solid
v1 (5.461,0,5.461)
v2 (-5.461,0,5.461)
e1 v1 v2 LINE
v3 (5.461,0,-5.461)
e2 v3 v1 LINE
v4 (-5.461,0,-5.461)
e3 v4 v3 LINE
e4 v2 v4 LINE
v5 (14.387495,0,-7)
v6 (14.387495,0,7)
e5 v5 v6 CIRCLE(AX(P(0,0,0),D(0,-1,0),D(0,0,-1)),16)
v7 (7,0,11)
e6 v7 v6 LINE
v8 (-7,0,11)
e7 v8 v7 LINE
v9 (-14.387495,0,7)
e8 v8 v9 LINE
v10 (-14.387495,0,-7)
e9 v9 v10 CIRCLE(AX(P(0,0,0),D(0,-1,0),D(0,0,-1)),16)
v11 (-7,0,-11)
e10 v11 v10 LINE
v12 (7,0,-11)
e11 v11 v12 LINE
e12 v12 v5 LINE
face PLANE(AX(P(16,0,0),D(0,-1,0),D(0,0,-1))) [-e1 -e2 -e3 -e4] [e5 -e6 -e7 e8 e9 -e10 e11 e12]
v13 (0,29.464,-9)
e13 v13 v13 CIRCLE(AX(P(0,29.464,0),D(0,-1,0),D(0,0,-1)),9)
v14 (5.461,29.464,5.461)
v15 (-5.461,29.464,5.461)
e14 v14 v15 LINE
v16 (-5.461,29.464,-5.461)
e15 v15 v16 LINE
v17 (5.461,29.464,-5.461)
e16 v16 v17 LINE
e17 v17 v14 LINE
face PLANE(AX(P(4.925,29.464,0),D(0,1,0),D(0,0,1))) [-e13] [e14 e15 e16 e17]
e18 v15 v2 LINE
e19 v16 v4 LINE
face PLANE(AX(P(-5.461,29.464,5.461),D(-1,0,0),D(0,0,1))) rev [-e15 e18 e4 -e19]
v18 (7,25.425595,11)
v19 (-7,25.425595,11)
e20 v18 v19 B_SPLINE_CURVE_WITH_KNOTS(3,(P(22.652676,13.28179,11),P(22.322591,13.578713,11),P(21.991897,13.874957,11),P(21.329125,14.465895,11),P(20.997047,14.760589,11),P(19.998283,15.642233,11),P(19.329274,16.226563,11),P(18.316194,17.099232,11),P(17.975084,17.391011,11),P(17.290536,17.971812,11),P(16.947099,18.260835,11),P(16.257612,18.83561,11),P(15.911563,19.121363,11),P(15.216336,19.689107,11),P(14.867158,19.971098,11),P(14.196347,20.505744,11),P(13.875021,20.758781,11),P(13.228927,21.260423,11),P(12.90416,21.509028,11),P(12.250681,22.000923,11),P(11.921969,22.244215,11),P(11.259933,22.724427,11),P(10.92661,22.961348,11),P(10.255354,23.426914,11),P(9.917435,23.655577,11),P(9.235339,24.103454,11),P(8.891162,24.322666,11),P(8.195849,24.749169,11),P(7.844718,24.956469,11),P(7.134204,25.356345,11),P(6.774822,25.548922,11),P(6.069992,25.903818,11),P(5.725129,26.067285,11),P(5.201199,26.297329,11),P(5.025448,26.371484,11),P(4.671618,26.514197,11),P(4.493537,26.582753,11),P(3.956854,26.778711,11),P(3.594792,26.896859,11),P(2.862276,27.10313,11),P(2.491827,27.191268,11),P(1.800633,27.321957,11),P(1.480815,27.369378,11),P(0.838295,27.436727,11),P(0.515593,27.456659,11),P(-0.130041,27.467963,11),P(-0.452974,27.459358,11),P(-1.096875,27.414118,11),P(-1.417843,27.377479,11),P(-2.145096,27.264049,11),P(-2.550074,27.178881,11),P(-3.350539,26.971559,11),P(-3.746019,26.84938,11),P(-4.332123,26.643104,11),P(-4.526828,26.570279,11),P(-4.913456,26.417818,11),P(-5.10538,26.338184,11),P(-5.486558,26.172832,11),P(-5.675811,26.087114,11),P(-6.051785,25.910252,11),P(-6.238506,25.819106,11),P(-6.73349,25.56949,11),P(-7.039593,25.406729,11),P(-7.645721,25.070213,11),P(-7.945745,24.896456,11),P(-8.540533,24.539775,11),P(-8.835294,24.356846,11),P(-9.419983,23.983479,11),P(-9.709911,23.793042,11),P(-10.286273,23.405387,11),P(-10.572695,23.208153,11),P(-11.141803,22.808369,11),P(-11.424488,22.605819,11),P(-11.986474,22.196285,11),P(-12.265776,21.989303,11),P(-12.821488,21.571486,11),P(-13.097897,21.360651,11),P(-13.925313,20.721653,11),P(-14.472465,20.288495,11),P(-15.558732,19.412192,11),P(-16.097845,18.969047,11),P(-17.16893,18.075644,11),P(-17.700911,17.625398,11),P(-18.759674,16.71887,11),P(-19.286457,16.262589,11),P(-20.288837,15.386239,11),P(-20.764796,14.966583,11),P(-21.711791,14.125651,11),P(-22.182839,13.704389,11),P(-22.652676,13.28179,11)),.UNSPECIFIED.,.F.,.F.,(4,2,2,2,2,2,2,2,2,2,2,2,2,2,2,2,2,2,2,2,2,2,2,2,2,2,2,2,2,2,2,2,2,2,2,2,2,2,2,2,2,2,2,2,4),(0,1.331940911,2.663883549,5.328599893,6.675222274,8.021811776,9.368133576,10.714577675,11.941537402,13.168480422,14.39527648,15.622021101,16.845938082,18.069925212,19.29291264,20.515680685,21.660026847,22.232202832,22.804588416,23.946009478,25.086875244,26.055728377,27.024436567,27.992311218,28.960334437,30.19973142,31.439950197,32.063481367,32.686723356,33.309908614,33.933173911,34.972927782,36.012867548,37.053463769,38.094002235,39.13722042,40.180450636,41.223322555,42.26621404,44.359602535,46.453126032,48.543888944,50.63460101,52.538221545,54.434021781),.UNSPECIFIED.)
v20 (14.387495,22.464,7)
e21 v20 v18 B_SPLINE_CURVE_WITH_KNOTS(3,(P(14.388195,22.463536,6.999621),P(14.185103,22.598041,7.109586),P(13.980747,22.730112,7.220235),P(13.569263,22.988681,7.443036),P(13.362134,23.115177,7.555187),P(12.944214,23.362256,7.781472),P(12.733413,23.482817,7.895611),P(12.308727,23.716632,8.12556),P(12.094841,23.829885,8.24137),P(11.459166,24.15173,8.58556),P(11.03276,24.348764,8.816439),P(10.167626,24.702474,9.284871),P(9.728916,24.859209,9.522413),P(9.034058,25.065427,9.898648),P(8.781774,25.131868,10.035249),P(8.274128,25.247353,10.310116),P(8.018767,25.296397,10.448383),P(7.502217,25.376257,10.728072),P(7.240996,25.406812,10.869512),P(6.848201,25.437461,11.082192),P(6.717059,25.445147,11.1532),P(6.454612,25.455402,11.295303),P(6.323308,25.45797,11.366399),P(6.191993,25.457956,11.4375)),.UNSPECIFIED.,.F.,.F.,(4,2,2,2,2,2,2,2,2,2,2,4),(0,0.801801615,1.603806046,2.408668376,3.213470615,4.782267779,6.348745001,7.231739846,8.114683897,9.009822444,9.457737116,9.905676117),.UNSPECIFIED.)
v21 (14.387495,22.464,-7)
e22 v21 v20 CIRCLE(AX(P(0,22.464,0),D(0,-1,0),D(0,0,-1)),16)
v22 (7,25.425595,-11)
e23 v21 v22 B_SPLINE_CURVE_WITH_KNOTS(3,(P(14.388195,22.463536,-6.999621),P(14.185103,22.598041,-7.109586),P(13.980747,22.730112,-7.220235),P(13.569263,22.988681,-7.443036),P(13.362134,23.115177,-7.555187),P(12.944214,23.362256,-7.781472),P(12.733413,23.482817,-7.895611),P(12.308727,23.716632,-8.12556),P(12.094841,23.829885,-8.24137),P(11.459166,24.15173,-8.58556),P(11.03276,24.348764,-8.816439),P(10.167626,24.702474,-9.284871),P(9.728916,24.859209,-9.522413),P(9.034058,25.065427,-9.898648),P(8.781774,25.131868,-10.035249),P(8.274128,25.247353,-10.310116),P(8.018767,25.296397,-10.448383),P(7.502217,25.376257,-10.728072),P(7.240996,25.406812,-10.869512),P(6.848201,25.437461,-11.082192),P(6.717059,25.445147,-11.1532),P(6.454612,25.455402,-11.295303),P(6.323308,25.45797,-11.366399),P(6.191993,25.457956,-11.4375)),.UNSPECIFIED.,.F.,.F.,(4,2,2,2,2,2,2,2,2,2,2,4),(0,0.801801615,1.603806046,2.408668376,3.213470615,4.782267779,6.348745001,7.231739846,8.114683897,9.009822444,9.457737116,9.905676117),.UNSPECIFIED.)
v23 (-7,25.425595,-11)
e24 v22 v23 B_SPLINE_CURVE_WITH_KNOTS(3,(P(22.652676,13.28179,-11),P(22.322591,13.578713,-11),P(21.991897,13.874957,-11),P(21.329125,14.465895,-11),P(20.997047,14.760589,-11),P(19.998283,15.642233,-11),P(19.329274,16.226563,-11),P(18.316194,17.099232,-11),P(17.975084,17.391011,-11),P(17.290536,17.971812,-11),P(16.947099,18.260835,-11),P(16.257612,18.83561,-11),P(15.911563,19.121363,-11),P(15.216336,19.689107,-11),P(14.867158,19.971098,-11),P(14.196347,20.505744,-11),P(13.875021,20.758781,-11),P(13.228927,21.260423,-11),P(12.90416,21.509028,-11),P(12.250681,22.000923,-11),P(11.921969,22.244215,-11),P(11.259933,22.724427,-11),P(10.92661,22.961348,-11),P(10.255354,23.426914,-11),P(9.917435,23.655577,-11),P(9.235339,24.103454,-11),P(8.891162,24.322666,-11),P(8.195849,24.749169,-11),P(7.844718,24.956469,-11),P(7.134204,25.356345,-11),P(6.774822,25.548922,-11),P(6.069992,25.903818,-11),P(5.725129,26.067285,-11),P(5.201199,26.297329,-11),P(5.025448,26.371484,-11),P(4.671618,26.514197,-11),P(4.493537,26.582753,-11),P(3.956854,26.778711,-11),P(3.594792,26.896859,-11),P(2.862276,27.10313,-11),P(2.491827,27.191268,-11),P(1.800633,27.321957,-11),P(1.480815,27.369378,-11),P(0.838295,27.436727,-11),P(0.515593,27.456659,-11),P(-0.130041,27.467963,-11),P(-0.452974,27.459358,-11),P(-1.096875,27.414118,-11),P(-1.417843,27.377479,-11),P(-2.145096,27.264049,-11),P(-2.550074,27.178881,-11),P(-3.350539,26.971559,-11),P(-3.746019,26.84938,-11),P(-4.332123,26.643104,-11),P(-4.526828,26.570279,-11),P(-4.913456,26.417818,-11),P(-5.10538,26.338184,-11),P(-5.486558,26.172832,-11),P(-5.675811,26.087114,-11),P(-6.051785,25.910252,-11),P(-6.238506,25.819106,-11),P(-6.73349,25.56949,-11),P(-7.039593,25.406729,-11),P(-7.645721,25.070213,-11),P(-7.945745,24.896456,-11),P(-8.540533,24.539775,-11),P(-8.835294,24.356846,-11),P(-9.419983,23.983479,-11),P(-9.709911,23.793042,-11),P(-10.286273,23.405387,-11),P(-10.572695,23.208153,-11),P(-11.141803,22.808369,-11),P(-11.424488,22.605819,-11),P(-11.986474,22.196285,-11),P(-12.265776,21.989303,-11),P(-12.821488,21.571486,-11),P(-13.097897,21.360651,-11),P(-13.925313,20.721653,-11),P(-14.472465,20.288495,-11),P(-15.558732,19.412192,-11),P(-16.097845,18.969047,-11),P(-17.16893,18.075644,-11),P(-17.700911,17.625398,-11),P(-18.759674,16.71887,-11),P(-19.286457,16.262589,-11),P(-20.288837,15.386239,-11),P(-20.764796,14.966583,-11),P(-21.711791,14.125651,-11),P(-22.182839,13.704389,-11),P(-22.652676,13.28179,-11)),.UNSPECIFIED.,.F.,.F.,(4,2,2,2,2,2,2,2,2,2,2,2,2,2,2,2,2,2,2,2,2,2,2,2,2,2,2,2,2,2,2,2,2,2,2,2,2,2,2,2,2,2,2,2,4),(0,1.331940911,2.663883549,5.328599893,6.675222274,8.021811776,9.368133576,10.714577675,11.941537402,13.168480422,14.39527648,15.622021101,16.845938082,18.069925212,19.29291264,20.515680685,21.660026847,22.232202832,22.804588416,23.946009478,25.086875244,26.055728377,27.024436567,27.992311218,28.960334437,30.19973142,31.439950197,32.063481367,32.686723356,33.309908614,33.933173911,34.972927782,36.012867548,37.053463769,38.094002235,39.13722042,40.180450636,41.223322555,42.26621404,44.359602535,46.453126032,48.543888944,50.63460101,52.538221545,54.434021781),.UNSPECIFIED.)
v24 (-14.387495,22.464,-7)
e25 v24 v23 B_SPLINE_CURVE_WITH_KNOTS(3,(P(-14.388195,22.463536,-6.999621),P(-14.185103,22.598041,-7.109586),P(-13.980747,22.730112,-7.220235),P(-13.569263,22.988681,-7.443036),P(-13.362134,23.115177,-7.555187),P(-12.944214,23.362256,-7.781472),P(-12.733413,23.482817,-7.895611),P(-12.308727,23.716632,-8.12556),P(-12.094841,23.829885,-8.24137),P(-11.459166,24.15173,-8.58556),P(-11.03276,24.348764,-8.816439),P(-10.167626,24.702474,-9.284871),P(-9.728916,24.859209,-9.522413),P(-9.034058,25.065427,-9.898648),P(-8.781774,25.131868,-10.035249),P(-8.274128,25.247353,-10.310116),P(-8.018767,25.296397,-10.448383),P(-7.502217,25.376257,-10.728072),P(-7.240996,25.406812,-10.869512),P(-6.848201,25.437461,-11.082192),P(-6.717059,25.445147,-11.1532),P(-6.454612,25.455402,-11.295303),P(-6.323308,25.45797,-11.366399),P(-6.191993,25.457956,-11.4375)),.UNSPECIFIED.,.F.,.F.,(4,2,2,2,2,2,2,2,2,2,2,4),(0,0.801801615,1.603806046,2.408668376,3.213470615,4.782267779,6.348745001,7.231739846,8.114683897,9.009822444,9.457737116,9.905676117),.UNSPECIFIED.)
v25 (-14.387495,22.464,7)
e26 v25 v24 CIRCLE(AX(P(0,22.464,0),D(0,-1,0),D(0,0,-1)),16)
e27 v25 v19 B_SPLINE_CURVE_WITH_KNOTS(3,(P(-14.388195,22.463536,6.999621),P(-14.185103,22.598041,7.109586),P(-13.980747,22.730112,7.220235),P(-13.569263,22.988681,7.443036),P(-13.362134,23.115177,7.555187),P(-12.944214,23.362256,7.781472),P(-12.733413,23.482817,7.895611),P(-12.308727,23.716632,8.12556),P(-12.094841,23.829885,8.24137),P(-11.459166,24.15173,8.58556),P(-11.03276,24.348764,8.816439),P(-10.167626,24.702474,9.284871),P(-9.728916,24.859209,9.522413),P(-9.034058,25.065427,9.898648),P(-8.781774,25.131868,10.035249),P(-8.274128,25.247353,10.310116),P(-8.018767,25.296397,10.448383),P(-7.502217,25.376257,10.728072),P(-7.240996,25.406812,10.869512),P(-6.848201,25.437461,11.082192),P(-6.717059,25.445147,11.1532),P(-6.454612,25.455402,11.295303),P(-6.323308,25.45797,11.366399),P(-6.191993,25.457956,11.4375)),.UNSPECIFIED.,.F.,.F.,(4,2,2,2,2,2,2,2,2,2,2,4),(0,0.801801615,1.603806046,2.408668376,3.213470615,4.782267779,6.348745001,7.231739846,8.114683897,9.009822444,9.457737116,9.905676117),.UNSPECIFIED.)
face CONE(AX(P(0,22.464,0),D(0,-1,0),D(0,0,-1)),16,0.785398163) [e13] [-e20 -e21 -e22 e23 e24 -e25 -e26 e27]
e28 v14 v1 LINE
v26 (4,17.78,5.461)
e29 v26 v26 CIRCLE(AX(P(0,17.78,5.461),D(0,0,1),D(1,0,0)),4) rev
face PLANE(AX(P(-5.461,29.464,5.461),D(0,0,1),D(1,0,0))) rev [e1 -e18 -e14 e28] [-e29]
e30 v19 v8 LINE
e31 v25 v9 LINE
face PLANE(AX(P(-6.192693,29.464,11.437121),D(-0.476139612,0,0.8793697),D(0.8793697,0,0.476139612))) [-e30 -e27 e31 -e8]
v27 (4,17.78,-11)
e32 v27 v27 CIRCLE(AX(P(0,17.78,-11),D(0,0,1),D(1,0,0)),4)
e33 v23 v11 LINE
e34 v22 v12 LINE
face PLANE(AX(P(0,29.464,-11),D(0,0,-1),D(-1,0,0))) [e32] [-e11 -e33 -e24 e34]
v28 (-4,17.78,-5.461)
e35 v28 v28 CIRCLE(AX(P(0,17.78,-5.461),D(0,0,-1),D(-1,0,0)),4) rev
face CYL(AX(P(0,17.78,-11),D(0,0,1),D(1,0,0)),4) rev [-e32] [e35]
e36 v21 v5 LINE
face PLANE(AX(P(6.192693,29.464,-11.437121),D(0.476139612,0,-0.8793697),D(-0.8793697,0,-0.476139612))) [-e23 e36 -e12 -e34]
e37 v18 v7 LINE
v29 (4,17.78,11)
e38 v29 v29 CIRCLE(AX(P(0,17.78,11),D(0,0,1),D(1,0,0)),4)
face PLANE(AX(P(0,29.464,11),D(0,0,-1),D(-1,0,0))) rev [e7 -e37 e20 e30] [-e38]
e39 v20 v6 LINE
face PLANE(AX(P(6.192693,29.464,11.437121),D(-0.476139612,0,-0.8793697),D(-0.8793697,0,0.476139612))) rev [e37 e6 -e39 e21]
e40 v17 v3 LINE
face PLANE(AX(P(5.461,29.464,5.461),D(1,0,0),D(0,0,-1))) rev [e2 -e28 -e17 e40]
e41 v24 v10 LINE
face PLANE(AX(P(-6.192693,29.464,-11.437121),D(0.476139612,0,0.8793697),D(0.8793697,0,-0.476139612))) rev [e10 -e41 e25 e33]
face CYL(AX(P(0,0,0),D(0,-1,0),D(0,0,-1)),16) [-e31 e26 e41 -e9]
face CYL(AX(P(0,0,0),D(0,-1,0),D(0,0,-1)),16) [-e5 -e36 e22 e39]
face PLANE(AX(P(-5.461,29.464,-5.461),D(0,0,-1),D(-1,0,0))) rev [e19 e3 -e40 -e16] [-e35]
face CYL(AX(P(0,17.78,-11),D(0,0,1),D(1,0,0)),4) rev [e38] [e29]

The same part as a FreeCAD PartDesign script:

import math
import FreeCAD as App
import Part
import Sketcher
from FreeCAD import Vector
Q = App.Units.Quantity

doc = App.newDocument("Part")
body = doc.addObject("PartDesign::Body", "Body")

# Sketch on XY plane
sketch1 = body.newObject("Sketcher::SketchObject", "Sketch")
sketch1.AttachmentSupport = (doc.getObject("XY_Plane"), [""])
sketch1.MapMode = "FlatFace"
sketch1.addGeometry(Part.LineSegment(Vector(16, 22.5, 0), Vector(9, 29.5, 0)), False)
sketch1.addGeometry(Part.LineSegment(Vector(9, 29.5, 0), Vector(4.9, 29.5, 0)), False)
sketch1.addGeometry(Part.LineSegment(Vector(4.9, 29.5, 0), Vector(4.9, 0, 0)), False)
sketch1.addGeometry(Part.LineSegment(Vector(4.9, 0, 0), Vector(16, 0, 0)), False)
sketch1.addGeometry(Part.LineSegment(Vector(16, 0, 0), Vector(16, 22.5, 0)), False)
sketch1.addConstraint(Sketcher.Constraint("Coincident", 0, 2, 1, 1))
sketch1.addConstraint(Sketcher.Constraint("Coincident", 1, 2, 2, 1))
sketch1.addConstraint(Sketcher.Constraint("Coincident", 2, 2, 3, 1))
sketch1.addConstraint(Sketcher.Constraint("Coincident", 3, 2, 4, 1))
sketch1.addConstraint(Sketcher.Constraint("Coincident", 4, 2, 0, 1))
sketch1.addConstraint(Sketcher.Constraint("Horizontal", 1))
sketch1.addConstraint(Sketcher.Constraint("Vertical", 2))
sketch1.addConstraint(Sketcher.Constraint("Horizontal", 3))
sketch1.addConstraint(Sketcher.Constraint("Vertical", 4))
sketch1.addConstraint(Sketcher.Constraint("PointOnObject", 2, 2, -1))
sketch1.addConstraint(Sketcher.Constraint("Angle", 0, Q("135 deg")))
sketch1.addConstraint(Sketcher.Constraint("DistanceX", -1, 1, 0, 2, 9.0))
sketch1.addConstraint(Sketcher.Constraint("DistanceX", -1, 1, 3, 2, 16.0))
sketch1.addConstraint(Sketcher.Constraint("DistanceX", 1, 2, 1, 1, 4.075))
sketch1.addConstraint(Sketcher.Constraint("DistanceY", 2, 2, 2, 1, 29.464))
revolution = body.newObject("PartDesign::Revolution", "Revolution")
revolution.Profile = sketch1
revolution.ReferenceAxis = (sketch1, ["V_Axis"])
revolution.Angle = 360

# Sketch on XZ plane
sketch2 = body.newObject("Sketcher::SketchObject", "Sketch001")
sketch2.AttachmentSupport = (doc.getObject("XZ_Plane"), [""])
sketch2.MapMode = "FlatFace"
sketch2.addGeometry(Part.LineSegment(Vector(7, -11, 0), Vector(14, -7, 0)), False)
sketch2.addGeometry(Part.ArcOfCircle(Part.Circle(Vector(0, 0, 0), Vector(0, 0, 1), 16), math.radians(-154), math.radians(-26)), False)
sketch2.addGeometry(Part.LineSegment(Vector(-14, -7, 0), Vector(-7, -11, 0)), False)
sketch2.addGeometry(Part.LineSegment(Vector(-7, -11, 0), Vector(7, -11, 0)), False)
sketch2.addGeometry(Part.ArcOfCircle(Part.Circle(Vector(0, 0, 0), Vector(0, 0, 1), 16), math.radians(26), math.radians(154)), False)
sketch2.addGeometry(Part.LineSegment(Vector(14, 7, 0), Vector(7, 11, 0)), False)
sketch2.addGeometry(Part.LineSegment(Vector(7, 11, 0), Vector(-7, 11, 0)), False)
sketch2.addGeometry(Part.LineSegment(Vector(-7, 11, 0), Vector(-14, 7, 0)), False)
sketch2.addConstraint(Sketcher.Constraint("Coincident", 0, 2, 1, 2))
sketch2.addConstraint(Sketcher.Constraint("Coincident", 1, 1, 2, 1))
sketch2.addConstraint(Sketcher.Constraint("Coincident", 2, 2, 3, 1))
sketch2.addConstraint(Sketcher.Constraint("Coincident", 3, 2, 0, 1))
sketch2.addConstraint(Sketcher.Constraint("Coincident", 4, 1, 5, 1))
sketch2.addConstraint(Sketcher.Constraint("Coincident", 5, 2, 6, 1))
sketch2.addConstraint(Sketcher.Constraint("Coincident", 6, 2, 7, 1))
sketch2.addConstraint(Sketcher.Constraint("Coincident", 7, 2, 4, 2))
sketch2.addConstraint(Sketcher.Constraint("Horizontal", 3))
sketch2.addConstraint(Sketcher.Constraint("Horizontal", 6))
sketch2.addConstraint(Sketcher.Constraint("Coincident", 1, 3, -1, 1))
sketch2.addConstraint(Sketcher.Constraint("Coincident", 4, 3, -1, 1))
sketch2.addConstraint(Sketcher.Constraint("Equal", 1, 4))
sketch2.addConstraint(Sketcher.Constraint("Symmetric", 2, 2, 5, 2, -1, 1))
sketch2.addConstraint(Sketcher.Constraint("Parallel", 2, 5))
sketch2.addConstraint(Sketcher.Constraint("Parallel", 0, 7))
sketch2.addConstraint(Sketcher.Constraint("Horizontal", 0, 2, 1, 1))
sketch2.addConstraint(Sketcher.Constraint("Horizontal", 4, 1, 7, 2))
sketch2.addConstraint(Sketcher.Constraint("Vertical", 3, 2, 5, 2))
sketch2.addConstraint(Sketcher.Constraint("Radius", 1, 16.0))
sketch2.addConstraint(Sketcher.Constraint("DistanceX", 3, 1, 3, 2, 14.0))
sketch2.addConstraint(Sketcher.Constraint("DistanceY", 0, 2, -1, 1, 7.0))
sketch2.addConstraint(Sketcher.Constraint("DistanceY", 2, 2, -1, 1, 11.0))
pocket1 = body.newObject("PartDesign::Pocket", "Pocket")
pocket1.Profile = sketch2
pocket1.Type = "ThroughAll"

# Sketch on XY plane
sketch3 = body.newObject("Sketcher::SketchObject", "Sketch002")
sketch3.AttachmentSupport = (doc.getObject("XY_Plane"), [""])
sketch3.MapMode = "FlatFace"
sketch3.addGeometry(Part.Circle(Vector(0, 17.8, 0), Vector(0, 0, 1), 4), False)
sketch3.addConstraint(Sketcher.Constraint("PointOnObject", 0, 3, -2))
sketch3.addConstraint(Sketcher.Constraint("Diameter", 0, 8.0))
sketch3.addConstraint(Sketcher.Constraint("DistanceY", -1, 1, 0, 3, 17.78))
pocket2 = body.newObject("PartDesign::Pocket", "Pocket001")
pocket2.Profile = sketch3
pocket2.Type = "ThroughAll"
pocket2.Midplane = True

# Sketch on XZ plane
sketch4 = body.newObject("Sketcher::SketchObject", "Sketch003")
sketch4.AttachmentSupport = (doc.getObject("XZ_Plane"), [""])
sketch4.MapMode = "FlatFace"
sketch4.addGeometry(Part.LineSegment(Vector(-5, 5, 0), Vector(-5, -5, 0)), False)
sketch4.addGeometry(Part.LineSegment(Vector(-5, -5, 0), Vector(5, -5, 0)), False)
sketch4.addGeometry(Part.LineSegment(Vector(5, -5, 0), Vector(5, 5, 0)), False)
sketch4.addGeometry(Part.LineSegment(Vector(5, 5, 0), Vector(-5, 5, 0)), False)
sketch4.addConstraint(Sketcher.Constraint("Coincident", 0, 2, 1, 1))
sketch4.addConstraint(Sketcher.Constraint("Coincident", 1, 2, 2, 1))
sketch4.addConstraint(Sketcher.Constraint("Coincident", 2, 2, 3, 1))
sketch4.addConstraint(Sketcher.Constraint("Coincident", 3, 2, 0, 1))
sketch4.addConstraint(Sketcher.Constraint("Vertical", 0))
sketch4.addConstraint(Sketcher.Constraint("Horizontal", 1))
sketch4.addConstraint(Sketcher.Constraint("Vertical", 2))
sketch4.addConstraint(Sketcher.Constraint("Horizontal", 3))
sketch4.addConstraint(Sketcher.Constraint("Symmetric", 0, 2, 2, 2, -1, 1))
sketch4.addConstraint(Sketcher.Constraint("Equal", 3, 0))
sketch4.addConstraint(Sketcher.Constraint("DistanceX", 1, 1, 1, 2, 10.922))
pocket3 = body.newObject("PartDesign::Pocket", "Pocket002")
pocket3.Profile = sketch4
pocket3.Type = "ThroughAll"

doc.recompute()
